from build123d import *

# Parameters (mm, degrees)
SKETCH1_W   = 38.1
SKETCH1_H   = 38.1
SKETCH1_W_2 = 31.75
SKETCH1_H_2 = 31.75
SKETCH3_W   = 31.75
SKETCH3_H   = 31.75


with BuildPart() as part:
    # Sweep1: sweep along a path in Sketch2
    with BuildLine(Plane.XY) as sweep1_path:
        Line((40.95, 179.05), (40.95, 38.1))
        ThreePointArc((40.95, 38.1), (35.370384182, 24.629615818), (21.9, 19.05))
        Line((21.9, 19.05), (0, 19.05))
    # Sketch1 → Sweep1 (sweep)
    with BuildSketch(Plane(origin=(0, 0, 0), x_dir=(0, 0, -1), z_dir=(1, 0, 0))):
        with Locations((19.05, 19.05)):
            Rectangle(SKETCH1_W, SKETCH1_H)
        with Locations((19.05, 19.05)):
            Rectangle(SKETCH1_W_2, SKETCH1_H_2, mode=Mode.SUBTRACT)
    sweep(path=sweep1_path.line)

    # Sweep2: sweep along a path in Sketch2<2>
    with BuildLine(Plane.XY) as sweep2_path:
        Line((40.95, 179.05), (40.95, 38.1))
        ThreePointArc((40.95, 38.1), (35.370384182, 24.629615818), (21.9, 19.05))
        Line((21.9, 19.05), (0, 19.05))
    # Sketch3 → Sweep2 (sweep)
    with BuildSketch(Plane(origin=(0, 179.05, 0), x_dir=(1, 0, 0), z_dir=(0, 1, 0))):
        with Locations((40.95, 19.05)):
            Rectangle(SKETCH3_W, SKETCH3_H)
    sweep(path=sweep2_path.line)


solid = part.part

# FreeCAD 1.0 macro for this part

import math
import FreeCAD as App
import Part
import Sketcher

V = App.Vector
Q = App.Units.Quantity


def add_polygon(sketch, points):
    """Adds a closed chain of lines whose ends are joined by coincident constraints."""
    first, n = sketch.GeometryCount, len(points)
    for a, b in zip(points, points[1:] + points[:1]):
        sketch.addGeometry(Part.LineSegment(App.Vector(*a, 0), App.Vector(*b, 0)), False)
    for i in range(n):
        sketch.addConstraint(Sketcher.Constraint("Coincident", first + i, 2, first + (i + 1) % n, 1))

doc = App.newDocument("Part")
body = doc.addObject("PartDesign::Body", "Body")

# Sketch on YZ plane
sketch1 = body.newObject("Sketcher::SketchObject", "Sketch")
sketch1.AttachmentSupport = (doc.getObject("YZ_Plane"), [""])
sketch1.MapMode = "FlatFace"
add_polygon(sketch1, [(38, 0), (0, 0), (0, -38), (38, -38)])  # lines 0-3
add_polygon(sketch1, [(3, -35), (3, -3), (35, -3), (35, -35)])  # lines 4-7
sketch1.addConstraint(Sketcher.Constraint("Horizontal", 0))
sketch1.addConstraint(Sketcher.Constraint("Vertical", 1))
sketch1.addConstraint(Sketcher.Constraint("Horizontal", 2))
sketch1.addConstraint(Sketcher.Constraint("Vertical", 3))
sketch1.addConstraint(Sketcher.Constraint("Vertical", 4))
sketch1.addConstraint(Sketcher.Constraint("Horizontal", 5))
sketch1.addConstraint(Sketcher.Constraint("Vertical", 6))
sketch1.addConstraint(Sketcher.Constraint("Horizontal", 7))
sketch1.addConstraint(Sketcher.Constraint("Coincident", 0, 2, -1, 1))
sketch1.addConstraint(Sketcher.Constraint("Equal", 2, 1))
sketch1.addConstraint(Sketcher.Constraint("Equal", 7, 4))
sketch1.addConstraint(Sketcher.Constraint("DistanceX", 0, 2, 0, 1, Q("1.5 in")))
sketch1.addConstraint(Sketcher.Constraint("DistanceX", 5, 1, 5, 2, Q("1.25 in")))
sketch1.addConstraint(Sketcher.Constraint("DistanceX", -1, 1, 4, 2, Q("0.125 in")))
sketch1.addConstraint(Sketcher.Constraint("DistanceY", 4, 2, -1, 1, Q("0.125 in")))

# Sketch on XY plane
sketch2 = body.newObject("Sketcher::SketchObject", "Sketch001")
sketch2.AttachmentSupport = (doc.getObject("XY_Plane"), [""])
sketch2.MapMode = "FlatFace"
sketch2.addGeometry(Part.LineSegment(V(41, 179, 0), V(41, 38, 0)), False)
sketch2.addGeometry(Part.ArcOfCircle(Part.Circle(V(22, 38, 0), V(0, 0, 1), 19), math.radians(-90), math.radians(0)), False)
sketch2.addGeometry(Part.LineSegment(V(22, 19, 0), V(0, 19, 0)), False)
sketch2.addConstraint(Sketcher.Constraint("Tangent", 0, 2, 1, 2))
sketch2.addConstraint(Sketcher.Constraint("Tangent", 1, 1, 2, 1))
sketch2.addConstraint(Sketcher.Constraint("Vertical", 0))
sketch2.addConstraint(Sketcher.Constraint("Horizontal", 2))
sketch2.addConstraint(Sketcher.Constraint("PointOnObject", 2, 2, -2))
sketch2.addConstraint(Sketcher.Constraint("Radius", 1, Q("0.75 in")))
sketch2.addConstraint(Sketcher.Constraint("DistanceY", -1, 1, 1, 3, Q("1.5 in")))
sketch2.addConstraint(Sketcher.Constraint("DistanceX", 2, 2, 2, 1, Q("21.9 mm")))
sketch2.addConstraint(Sketcher.Constraint("DistanceY", 0, 2, 0, 1, Q("140.95 mm")))
doc.recompute()

additivepipe = body.newObject("PartDesign::AdditivePipe", "AdditivePipe")
additivepipe.Profile = sketch1
additivepipe.Spine = (sketch2, ["Edge1", "Edge2", "Edge3"])

# Sketch on XZ plane
sketch3 = body.newObject("Sketcher::SketchObject", "Sketch002")
sketch3.AttachmentSupport = (doc.getObject("XZ_Plane"), [""])
sketch3.MapMode = "FlatFace"
sketch3.AttachmentOffset = App.Placement(V(0, 0, -179.05), App.Rotation())
add_polygon(sketch3, [(25, -35), (25, -3), (57, -3), (57, -35)])  # lines 0-3
sketch3.addConstraint(Sketcher.Constraint("Vertical", 0))
sketch3.addConstraint(Sketcher.Constraint("Horizontal", 1))
sketch3.addConstraint(Sketcher.Constraint("Vertical", 2))
sketch3.addConstraint(Sketcher.Constraint("Horizontal", 3))
sketch3.addConstraint(Sketcher.Constraint("Equal", 3, 0))
sketch3.addConstraint(Sketcher.Constraint("DistanceX", 1, 1, 1, 2, Q("1.25 in")))
sketch3.addConstraint(Sketcher.Constraint("DistanceY", 0, 2, -1, 1, Q("0.125 in")))
sketch3.addConstraint(Sketcher.Constraint("DistanceX", -1, 1, 0, 2, Q("25.075 mm")))

# Sketch on XY plane
sketch4 = body.newObject("Sketcher::SketchObject", "Sketch003")
sketch4.AttachmentSupport = (doc.getObject("XY_Plane"), [""])
sketch4.MapMode = "FlatFace"
sketch4.addGeometry(Part.LineSegment(V(41, 179, 0), V(41, 38, 0)), False)
sketch4.addGeometry(Part.ArcOfCircle(Part.Circle(V(22, 38, 0), V(0, 0, 1), 19), math.radians(-90), math.radians(0)), False)
sketch4.addGeometry(Part.LineSegment(V(22, 19, 0), V(0, 19, 0)), False)
sketch4.addConstraint(Sketcher.Constraint("Tangent", 0, 2, 1, 2))
sketch4.addConstraint(Sketcher.Constraint("Tangent", 1, 1, 2, 1))
sketch4.addConstraint(Sketcher.Constraint("Vertical", 0))
sketch4.addConstraint(Sketcher.Constraint("Horizontal", 2))
sketch4.addConstraint(Sketcher.Constraint("PointOnObject", 2, 2, -2))
sketch4.addConstraint(Sketcher.Constraint("Radius", 1, Q("0.75 in")))
sketch4.addConstraint(Sketcher.Constraint("DistanceY", -1, 1, 1, 3, Q("1.5 in")))
sketch4.addConstraint(Sketcher.Constraint("DistanceX", 2, 2, 2, 1, Q("21.9 mm")))
sketch4.addConstraint(Sketcher.Constraint("DistanceY", 0, 2, 0, 1, Q("140.95 mm")))
doc.recompute()

additivepipe2 = body.newObject("PartDesign::AdditivePipe", "AdditivePipe001")
additivepipe2.Profile = sketch3
additivepipe2.Spine = (sketch4, ["Edge1", "Edge2", "Edge3"])

doc.recompute()
